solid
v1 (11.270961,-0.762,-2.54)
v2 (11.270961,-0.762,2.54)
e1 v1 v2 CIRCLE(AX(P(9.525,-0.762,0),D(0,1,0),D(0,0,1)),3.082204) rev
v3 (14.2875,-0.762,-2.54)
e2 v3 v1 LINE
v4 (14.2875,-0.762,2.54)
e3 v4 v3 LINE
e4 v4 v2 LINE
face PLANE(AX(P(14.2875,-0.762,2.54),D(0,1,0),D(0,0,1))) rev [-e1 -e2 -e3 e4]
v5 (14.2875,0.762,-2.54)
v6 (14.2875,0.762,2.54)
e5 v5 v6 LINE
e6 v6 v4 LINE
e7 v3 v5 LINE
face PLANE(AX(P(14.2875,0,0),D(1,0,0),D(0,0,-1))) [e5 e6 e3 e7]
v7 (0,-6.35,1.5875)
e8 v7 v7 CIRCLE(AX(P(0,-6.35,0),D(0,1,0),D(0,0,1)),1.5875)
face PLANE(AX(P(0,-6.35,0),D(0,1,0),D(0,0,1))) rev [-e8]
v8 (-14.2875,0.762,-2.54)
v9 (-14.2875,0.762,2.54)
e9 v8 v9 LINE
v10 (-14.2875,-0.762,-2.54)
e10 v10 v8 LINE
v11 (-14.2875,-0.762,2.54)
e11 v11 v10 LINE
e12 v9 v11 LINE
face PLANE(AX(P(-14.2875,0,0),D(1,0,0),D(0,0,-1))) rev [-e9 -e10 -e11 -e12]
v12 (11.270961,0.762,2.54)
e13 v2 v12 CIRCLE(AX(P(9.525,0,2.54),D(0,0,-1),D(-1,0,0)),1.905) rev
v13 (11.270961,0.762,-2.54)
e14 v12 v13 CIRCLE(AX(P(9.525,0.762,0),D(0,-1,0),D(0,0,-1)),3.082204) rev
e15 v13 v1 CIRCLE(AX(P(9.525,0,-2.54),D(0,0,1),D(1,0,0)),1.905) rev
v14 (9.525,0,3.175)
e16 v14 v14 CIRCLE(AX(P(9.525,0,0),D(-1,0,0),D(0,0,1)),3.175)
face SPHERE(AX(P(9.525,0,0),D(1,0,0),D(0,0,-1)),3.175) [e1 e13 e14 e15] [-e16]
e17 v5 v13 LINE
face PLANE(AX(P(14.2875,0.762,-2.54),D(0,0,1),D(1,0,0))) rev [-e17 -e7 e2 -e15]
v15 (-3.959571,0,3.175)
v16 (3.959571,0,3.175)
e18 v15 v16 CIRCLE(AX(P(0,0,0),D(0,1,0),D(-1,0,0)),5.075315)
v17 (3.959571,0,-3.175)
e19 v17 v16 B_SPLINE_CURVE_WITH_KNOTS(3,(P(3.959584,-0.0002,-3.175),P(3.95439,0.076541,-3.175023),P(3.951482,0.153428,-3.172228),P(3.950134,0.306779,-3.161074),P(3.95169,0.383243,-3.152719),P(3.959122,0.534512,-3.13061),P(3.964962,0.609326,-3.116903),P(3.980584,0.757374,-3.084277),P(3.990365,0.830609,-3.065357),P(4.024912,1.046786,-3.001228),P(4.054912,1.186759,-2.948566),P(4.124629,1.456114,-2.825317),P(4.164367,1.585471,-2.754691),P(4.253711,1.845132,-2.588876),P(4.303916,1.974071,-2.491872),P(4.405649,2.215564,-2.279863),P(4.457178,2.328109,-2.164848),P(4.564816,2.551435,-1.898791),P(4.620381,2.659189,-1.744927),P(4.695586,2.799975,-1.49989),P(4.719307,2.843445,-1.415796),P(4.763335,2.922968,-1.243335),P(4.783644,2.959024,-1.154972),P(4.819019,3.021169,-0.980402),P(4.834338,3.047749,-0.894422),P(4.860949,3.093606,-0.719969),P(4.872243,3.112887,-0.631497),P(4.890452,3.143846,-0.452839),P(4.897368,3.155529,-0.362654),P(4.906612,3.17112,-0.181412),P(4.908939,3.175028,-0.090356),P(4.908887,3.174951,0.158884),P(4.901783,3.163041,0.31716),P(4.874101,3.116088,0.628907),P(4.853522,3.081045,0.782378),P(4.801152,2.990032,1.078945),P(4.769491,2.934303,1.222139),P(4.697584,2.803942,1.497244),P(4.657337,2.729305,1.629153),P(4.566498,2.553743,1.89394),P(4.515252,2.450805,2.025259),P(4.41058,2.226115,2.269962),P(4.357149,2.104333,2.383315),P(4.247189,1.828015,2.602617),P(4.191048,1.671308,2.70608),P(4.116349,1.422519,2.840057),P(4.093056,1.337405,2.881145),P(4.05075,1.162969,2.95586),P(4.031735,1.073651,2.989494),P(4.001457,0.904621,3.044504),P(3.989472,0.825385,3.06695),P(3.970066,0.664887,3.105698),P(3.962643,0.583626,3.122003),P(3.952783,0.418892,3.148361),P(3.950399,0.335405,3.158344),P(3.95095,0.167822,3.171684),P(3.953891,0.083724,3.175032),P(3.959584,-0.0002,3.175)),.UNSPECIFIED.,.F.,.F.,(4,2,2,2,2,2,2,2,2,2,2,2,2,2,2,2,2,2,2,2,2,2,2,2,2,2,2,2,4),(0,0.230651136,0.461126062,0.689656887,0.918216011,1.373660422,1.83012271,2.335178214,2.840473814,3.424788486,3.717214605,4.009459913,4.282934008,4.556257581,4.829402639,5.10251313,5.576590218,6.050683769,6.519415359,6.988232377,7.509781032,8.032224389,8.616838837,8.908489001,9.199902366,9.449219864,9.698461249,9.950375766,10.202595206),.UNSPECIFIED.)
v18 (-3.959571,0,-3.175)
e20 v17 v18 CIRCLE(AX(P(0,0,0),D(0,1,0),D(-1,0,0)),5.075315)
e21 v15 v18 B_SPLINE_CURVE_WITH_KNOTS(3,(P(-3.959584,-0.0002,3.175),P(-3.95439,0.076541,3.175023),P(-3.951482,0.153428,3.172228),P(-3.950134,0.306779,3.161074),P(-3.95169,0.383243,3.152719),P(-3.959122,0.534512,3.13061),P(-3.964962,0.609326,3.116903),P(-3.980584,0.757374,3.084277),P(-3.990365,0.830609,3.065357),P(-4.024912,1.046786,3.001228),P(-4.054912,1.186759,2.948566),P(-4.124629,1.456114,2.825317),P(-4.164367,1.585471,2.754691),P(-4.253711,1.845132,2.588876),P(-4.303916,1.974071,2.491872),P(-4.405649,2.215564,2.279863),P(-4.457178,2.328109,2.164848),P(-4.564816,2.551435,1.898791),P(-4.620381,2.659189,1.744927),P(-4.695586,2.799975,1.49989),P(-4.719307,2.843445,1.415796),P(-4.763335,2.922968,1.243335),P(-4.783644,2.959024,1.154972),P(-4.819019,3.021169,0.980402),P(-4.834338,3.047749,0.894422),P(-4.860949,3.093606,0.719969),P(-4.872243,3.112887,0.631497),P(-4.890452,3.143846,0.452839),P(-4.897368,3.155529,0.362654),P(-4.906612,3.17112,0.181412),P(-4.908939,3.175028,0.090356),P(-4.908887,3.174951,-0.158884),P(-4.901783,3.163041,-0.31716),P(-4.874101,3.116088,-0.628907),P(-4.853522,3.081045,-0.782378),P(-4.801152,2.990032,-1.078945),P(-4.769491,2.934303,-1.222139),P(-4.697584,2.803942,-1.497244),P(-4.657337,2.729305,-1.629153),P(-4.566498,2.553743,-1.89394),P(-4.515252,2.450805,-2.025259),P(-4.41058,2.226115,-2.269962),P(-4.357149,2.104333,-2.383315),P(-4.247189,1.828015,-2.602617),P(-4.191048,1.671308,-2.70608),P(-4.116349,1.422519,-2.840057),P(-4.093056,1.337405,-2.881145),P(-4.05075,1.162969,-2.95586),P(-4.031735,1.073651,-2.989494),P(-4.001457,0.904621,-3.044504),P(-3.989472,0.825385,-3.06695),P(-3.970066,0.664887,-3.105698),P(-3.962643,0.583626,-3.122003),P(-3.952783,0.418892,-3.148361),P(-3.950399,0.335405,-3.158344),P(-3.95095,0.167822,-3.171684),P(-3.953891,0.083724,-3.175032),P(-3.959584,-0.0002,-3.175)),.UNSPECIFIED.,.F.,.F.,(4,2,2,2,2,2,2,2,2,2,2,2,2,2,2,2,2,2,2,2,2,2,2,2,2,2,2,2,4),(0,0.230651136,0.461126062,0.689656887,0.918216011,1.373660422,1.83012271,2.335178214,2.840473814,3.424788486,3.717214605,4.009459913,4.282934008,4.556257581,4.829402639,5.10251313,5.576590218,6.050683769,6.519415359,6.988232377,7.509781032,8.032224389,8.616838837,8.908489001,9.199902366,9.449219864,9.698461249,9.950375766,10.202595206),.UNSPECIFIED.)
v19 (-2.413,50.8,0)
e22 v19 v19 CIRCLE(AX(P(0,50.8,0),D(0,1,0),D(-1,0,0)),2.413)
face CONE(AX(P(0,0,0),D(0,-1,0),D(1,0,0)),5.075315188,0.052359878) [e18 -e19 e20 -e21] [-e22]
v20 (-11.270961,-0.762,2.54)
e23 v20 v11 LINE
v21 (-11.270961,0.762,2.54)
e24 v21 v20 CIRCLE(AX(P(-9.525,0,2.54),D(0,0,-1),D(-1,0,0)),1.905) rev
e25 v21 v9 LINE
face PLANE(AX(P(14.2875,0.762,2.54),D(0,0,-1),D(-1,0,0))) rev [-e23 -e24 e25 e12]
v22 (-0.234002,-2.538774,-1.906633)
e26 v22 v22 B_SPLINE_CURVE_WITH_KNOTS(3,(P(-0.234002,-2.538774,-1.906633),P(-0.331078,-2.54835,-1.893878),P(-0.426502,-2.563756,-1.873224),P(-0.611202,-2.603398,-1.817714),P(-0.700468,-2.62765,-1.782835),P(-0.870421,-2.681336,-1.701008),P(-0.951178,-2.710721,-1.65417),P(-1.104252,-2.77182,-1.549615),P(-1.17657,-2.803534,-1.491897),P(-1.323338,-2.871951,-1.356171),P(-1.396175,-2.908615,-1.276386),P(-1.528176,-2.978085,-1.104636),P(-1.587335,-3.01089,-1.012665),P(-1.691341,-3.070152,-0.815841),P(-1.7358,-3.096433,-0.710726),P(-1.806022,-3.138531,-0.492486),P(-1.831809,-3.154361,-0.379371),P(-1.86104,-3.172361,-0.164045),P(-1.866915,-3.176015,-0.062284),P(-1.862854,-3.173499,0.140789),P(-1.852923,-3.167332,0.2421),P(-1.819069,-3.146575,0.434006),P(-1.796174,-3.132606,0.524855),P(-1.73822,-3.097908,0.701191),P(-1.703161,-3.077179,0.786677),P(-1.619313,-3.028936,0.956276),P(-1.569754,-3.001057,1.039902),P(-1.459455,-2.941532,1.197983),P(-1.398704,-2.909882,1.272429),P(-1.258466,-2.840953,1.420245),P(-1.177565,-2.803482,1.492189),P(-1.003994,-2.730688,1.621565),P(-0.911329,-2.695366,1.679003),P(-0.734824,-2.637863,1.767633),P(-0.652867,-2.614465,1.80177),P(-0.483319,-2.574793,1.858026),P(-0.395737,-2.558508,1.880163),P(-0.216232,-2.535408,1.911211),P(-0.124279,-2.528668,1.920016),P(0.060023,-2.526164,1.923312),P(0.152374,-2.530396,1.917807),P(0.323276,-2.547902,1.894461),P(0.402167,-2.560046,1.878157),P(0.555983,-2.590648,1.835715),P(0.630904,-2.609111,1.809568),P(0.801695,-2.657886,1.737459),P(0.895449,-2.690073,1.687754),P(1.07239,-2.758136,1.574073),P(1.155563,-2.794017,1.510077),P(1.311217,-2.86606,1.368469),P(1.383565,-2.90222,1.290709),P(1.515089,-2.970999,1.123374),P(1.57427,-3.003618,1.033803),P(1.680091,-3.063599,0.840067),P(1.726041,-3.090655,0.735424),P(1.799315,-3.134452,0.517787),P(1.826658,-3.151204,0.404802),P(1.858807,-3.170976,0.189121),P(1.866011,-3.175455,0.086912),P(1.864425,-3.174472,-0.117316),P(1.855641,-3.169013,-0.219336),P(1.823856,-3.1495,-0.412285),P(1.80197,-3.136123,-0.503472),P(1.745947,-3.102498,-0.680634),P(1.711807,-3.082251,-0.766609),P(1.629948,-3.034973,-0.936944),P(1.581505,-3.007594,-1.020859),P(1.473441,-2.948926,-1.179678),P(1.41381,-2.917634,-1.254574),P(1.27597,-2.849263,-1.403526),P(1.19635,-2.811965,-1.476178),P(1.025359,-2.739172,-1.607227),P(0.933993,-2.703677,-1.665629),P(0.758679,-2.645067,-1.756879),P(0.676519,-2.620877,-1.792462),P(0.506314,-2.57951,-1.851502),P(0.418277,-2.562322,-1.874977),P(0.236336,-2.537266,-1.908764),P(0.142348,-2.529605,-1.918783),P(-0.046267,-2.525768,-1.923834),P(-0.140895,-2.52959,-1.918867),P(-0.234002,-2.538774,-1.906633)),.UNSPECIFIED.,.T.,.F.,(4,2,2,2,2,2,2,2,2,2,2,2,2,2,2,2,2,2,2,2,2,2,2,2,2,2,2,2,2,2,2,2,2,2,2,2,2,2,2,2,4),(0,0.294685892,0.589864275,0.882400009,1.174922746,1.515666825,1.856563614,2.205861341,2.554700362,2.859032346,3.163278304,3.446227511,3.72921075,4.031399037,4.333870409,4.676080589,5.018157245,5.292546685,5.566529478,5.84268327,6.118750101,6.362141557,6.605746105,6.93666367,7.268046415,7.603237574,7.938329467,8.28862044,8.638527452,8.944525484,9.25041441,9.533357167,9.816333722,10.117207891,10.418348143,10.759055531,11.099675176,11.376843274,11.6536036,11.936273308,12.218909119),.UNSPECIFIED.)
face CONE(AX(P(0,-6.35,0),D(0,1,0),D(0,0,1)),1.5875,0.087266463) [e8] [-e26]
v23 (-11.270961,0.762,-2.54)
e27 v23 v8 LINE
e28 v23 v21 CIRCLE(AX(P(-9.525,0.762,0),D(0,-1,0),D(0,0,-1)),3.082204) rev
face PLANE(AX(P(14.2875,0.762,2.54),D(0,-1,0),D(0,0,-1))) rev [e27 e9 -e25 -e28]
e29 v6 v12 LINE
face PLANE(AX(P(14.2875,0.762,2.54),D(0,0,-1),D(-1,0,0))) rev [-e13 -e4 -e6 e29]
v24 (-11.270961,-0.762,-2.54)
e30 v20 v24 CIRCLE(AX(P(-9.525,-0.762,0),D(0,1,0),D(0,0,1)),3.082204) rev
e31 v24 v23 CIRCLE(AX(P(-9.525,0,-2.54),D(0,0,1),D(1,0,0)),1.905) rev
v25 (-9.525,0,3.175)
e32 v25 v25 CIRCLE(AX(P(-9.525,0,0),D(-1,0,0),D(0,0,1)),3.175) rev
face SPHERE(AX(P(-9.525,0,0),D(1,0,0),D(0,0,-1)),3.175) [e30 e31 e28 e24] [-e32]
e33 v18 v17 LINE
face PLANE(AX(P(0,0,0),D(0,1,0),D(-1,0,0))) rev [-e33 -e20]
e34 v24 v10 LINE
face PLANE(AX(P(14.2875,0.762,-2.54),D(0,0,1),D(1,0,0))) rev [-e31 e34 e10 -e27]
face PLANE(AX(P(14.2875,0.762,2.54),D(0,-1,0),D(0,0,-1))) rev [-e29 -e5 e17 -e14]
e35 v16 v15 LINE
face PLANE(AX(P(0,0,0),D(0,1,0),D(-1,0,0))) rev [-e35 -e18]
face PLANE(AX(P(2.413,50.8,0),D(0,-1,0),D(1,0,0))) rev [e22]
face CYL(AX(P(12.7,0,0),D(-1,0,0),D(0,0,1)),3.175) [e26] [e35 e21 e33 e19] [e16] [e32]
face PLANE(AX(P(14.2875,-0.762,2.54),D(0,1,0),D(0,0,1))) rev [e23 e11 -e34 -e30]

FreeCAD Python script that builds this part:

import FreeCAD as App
import Part
import Sketcher
Q = App.Units.Quantity


def edges_at(feature, points):
    """Names of the edges that pass closest to the given points."""
    edges = feature.Shape.Edges
    near = lambda p: min(range(len(edges)), key=lambda i: edges[i].distToShape(Part.Vertex(*p))[0])
    return sorted({f"Edge{near(p) + 1}" for p in points})


def faces_at(feature, points):
    """Names of the faces that lie closest to the given points."""
    faces = feature.Shape.Faces
    near = lambda p: min(range(len(faces)), key=lambda i: faces[i].distToShape(Part.Vertex(*p))[0])
    return sorted({f"Face{near(p) + 1}" for p in points})


def add_polygon(sketch, points):
    """Adds a closed chain of lines whose ends are joined by coincident constraints."""
    first, n = sketch.GeometryCount, len(points)
    for a, b in zip(points, points[1:] + points[:1]):
        sketch.addGeometry(Part.LineSegment(App.Vector(*a, 0), App.Vector(*b, 0)), False)
    for i in range(n):
        sketch.addConstraint(Sketcher.Constraint("Coincident", first + i, 2, first + (i + 1) % n, 1))

doc = App.newDocument("Part")
body = doc.addObject("PartDesign::Body", "Body")

# Sketch on XY plane
sketch1 = doc.addObject("Sketcher::SketchObject", "Sketch")
body.addObject(sketch1)
sketch1.AttachmentSupport = (doc.XY_Plane, [""])
sketch1.MapMode = "FlatFace"
add_polygon(sketch1, [(0, 50.8), (0, 0), (5.1, 0), (2.4, 50.8)])  # lines 0-3
sketch1.addConstraint([
    Sketcher.Constraint("Vertical", 0),
    Sketcher.Constraint("Horizontal", 1),
    Sketcher.Constraint("Horizontal", 3),
    Sketcher.Constraint("Coincident", 0, 2, -1, 1),
    Sketcher.Constraint("DistanceY", 0, 2, 0, 1, Q("2 in")),
    Sketcher.Constraint("Angle", 2, Q("93 deg")),
    Sketcher.Constraint("DistanceX", 3, 2, 3, 1, Q("0.095 in")),
])
revolution = doc.addObject("PartDesign::Revolution", "Revolution")
body.addObject(revolution)
revolution.Profile = sketch1
revolution.ReferenceAxis = (sketch1, ["V_Axis"])
revolution.Angle = 360

# Sketch on YZ plane
sketch2 = doc.addObject("Sketcher::SketchObject", "Sketch001")
body.addObject(sketch2)
sketch2.AttachmentSupport = (doc.YZ_Plane, [""])
sketch2.MapMode = "FlatFace"
sketch2.addGeometry(Part.Circle(App.Vector(0, 0, 0), App.Vector(0, 0, 1), 3.2), False)
sketch2.addConstraint([
    Sketcher.Constraint("Coincident", 0, 3, -1, 1),
    Sketcher.Constraint("Diameter", 0, Q("0.25 in")),
])
pad1 = doc.addObject("PartDesign::Pad", "Pad")
body.addObject(pad1)
pad1.Profile = sketch2
pad1.Length = Q("1 in")
pad1.Midplane = True
doc.recompute()

fillet = doc.addObject("PartDesign::Fillet", "Fillet")
body.addObject(fillet)
fillet.Base = (pad1, edges_at(pad1, [(-12.7, 0, 3.175), (12.7, 0, 3.175)]))
fillet.Radius = Q("0.125 in")

# Sketch on YZ plane
sketch3 = doc.addObject("Sketcher::SketchObject", "Sketch002")
body.addObject(sketch3)
sketch3.AttachmentSupport = (doc.YZ_Plane, [""])
sketch3.MapMode = "FlatFace"
add_polygon(sketch3, [(0.8, 2.5), (-0.8, 2.5), (-0.8, -2.5), (0.8, -2.5)])  # lines 0-3
sketch3.addConstraint([
    Sketcher.Constraint("Horizontal", 0),
    Sketcher.Constraint("Vertical", 1),
    Sketcher.Constraint("Horizontal", 2),
    Sketcher.Constraint("Vertical", 3),
    Sketcher.Constraint("Symmetric", 0, 2, 2, 2, -1, 1),
    Sketcher.Constraint("DistanceY", 1, 2, 1, 1, Q("0.2 in")),
    Sketcher.Constraint("DistanceX", 0, 2, 0, 1, Q("0.06 in")),
])
pad2 = doc.addObject("PartDesign::Pad", "Pad001")
body.addObject(pad2)
pad2.Profile = sketch3
pad2.Length = Q("1.125 in")
pad2.Midplane = True

# Sketch on XZ plane
sketch4 = doc.addObject("Sketcher::SketchObject", "Sketch003")
body.addObject(sketch4)
sketch4.AttachmentSupport = (doc.XZ_Plane, [""])
sketch4.MapMode = "FlatFace"
sketch4.addGeometry(Part.Circle(App.Vector(0, 0, 0), App.Vector(0, 0, 1), 1.6), False)
sketch4.addConstraint([
    Sketcher.Constraint("Coincident", 0, 3, -1, 1),
    Sketcher.Constraint("Diameter", 0, Q("0.125 in")),
])
pad3 = doc.addObject("PartDesign::Pad", "Pad002")
body.addObject(pad3)
pad3.Profile = sketch4
pad3.Length = Q("0.25 in")
doc.recompute()

datumplane = doc.addObject("PartDesign::Plane", "DatumPlane")
body.addObject(datumplane)
datumplane.AttachmentSupport = (doc.XZ_Plane, [""])
datumplane.MapMode = "FlatFace"
datumplane.AttachmentOffset = App.Placement(App.Vector(0, 0, 0.25 * 25.4), App.Rotation())
draft = doc.addObject("PartDesign::Draft", "Draft")
body.addObject(draft)
draft.Base = (pad3, faces_at(pad3, [(0, -4.55, -1.587)]))
draft.NeutralPlane = (datumplane, [""])
draft.Angle = 5
draft.Reversed = False

doc.recompute()
